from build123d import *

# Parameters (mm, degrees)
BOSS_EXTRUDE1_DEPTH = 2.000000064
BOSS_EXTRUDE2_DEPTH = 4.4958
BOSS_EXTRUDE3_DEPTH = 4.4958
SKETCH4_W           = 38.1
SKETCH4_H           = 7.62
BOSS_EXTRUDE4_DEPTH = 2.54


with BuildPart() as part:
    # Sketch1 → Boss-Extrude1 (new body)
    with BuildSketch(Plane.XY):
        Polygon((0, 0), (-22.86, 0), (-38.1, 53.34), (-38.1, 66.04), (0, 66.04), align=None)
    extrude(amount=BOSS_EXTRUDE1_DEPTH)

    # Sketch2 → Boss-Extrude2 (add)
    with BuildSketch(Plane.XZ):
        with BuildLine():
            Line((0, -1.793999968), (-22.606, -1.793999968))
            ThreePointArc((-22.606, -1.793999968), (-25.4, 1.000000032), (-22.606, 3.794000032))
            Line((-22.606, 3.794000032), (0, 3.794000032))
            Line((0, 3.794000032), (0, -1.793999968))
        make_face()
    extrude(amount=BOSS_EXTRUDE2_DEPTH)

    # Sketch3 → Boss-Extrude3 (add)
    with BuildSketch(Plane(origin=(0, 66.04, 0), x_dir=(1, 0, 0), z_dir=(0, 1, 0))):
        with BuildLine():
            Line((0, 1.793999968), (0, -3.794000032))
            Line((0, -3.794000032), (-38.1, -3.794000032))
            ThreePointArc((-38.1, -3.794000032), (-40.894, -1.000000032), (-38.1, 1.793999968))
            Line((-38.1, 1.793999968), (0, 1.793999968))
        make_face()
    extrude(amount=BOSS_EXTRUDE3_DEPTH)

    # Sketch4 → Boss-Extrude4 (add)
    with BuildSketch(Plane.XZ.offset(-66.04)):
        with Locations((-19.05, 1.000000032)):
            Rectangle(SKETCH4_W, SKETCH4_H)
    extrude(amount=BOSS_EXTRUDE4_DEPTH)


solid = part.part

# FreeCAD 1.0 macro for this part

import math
import FreeCAD as App
import Part
import Sketcher
from FreeCAD import Vector
Q = App.Units.Quantity


def add_polygon(sketch, points):
    """Adds a closed chain of lines whose ends are joined by coincident constraints."""
    first, n = sketch.GeometryCount, len(points)
    for a, b in zip(points, points[1:] + points[:1]):
        sketch.addGeometry(Part.LineSegment(App.Vector(*a, 0), App.Vector(*b, 0)), False)
    for i in range(n):
        sketch.addConstraint(Sketcher.Constraint("Coincident", first + i, 2, first + (i + 1) % n, 1))

doc = App.newDocument("Part")
body = doc.addObject("PartDesign::Body", "Body")

# Sketch on XY plane
sketch1 = body.newObject("Sketcher::SketchObject", "Sketch")
sketch1.AttachmentSupport = (doc.getObject("XY_Plane"), [""])
sketch1.MapMode = "FlatFace"
add_polygon(sketch1, [(-23, 0), (0, 0), (0, 66), (-38, 66), (-38, 53)])  # lines 0-4
sketch1.addConstraint([
    Sketcher.Constraint("Horizontal", 0),
    Sketcher.Constraint("Vertical", 1),
    Sketcher.Constraint("Horizontal", 2),
    Sketcher.Constraint("Vertical", 3),
    Sketcher.Constraint("Coincident", 0, 2, -1, 1),
    Sketcher.Constraint("DistanceX", 0, 1, 0, 2, Q("0.9 in")),
    Sketcher.Constraint("DistanceX", 2, 2, 2, 1, Q("1.5 in")),
    Sketcher.Constraint("DistanceY", 1, 1, 1, 2, Q("2.6 in")),
    Sketcher.Constraint("DistanceY", 3, 2, 3, 1, Q("0.5 in")),
])
pad1 = body.newObject("PartDesign::Pad", "Pad")
pad1.Profile = sketch1
pad1.Length = 2

# Sketch on XZ plane
sketch2 = body.newObject("Sketcher::SketchObject", "Sketch001")
sketch2.AttachmentSupport = (doc.getObject("XZ_Plane"), [""])
sketch2.MapMode = "FlatFace"
sketch2.addGeometry([
    Part.LineSegment(Vector(-22.6, -1.8, 0), Vector(0, -1.8, 0)),
    Part.LineSegment(Vector(0, -1.8, 0), Vector(0, 3.8, 0)),
    Part.LineSegment(Vector(0, 3.8, 0), Vector(-22.6, 3.8, 0)),
    Part.ArcOfCircle(Part.Circle(Vector(-22.6, 1, 0), Vector(0, 0, 1), 2.8), math.radians(90), math.radians(270)),
], False)
sketch2.addConstraint([
    Sketcher.Constraint("Coincident", 0, 2, 1, 1),
    Sketcher.Constraint("Coincident", 1, 2, 2, 1),
    Sketcher.Constraint("Tangent", 2, 2, 3, 1),
    Sketcher.Constraint("Tangent", 3, 2, 0, 1),
    Sketcher.Constraint("Horizontal", 0),
    Sketcher.Constraint("Vertical", 1),
    Sketcher.Constraint("Horizontal", 2),
    Sketcher.Constraint("PointOnObject", 0, 2, -2),
    Sketcher.Constraint("Radius", 3, Q("0.11 in")),
    Sketcher.Constraint("DistanceX", 0, 1, 0, 2, Q("0.89 in")),
    Sketcher.Constraint("DistanceY", -1, 1, 3, 3, Q("1 mm")),
])
pad2 = body.newObject("PartDesign::Pad", "Pad001")
pad2.Profile = sketch2
pad2.Length = Q("0.177 in")

# Sketch on XZ plane
sketch3 = body.newObject("Sketcher::SketchObject", "Sketch002")
sketch3.AttachmentSupport = (doc.getObject("XZ_Plane"), [""])
sketch3.MapMode = "FlatFace"
sketch3.AttachmentOffset = App.Placement(Vector(0, 0, -2.6 * 25.4), App.Rotation())
sketch3.addGeometry([
    Part.LineSegment(Vector(0, 3.8, 0), Vector(0, -1.8, 0)),
    Part.LineSegment(Vector(0, -1.8, 0), Vector(-38.1, -1.8, 0)),
    Part.ArcOfCircle(Part.Circle(Vector(-38.1, 1, 0), Vector(0, 0, 1), 2.8), math.radians(90), math.radians(270)),
    Part.LineSegment(Vector(-38.1, 3.8, 0), Vector(0, 3.8, 0)),
], False)
sketch3.addConstraint([
    Sketcher.Constraint("Coincident", 0, 2, 1, 1),
    Sketcher.Constraint("Tangent", 1, 2, 2, 2),
    Sketcher.Constraint("Tangent", 2, 1, 3, 1),
    Sketcher.Constraint("Coincident", 3, 2, 0, 1),
    Sketcher.Constraint("Vertical", 0),
    Sketcher.Constraint("Horizontal", 1),
    Sketcher.Constraint("Horizontal", 3),
    Sketcher.Constraint("PointOnObject", 0, 2, -2),
    Sketcher.Constraint("Radius", 2, Q("0.11 in")),
    Sketcher.Constraint("DistanceX", 1, 2, 1, 1, Q("1.5 in")),
    Sketcher.Constraint("DistanceY", -1, 1, 2, 3, Q("1 mm")),
])
pad3 = body.newObject("PartDesign::Pad", "Pad002")
pad3.Profile = sketch3
pad3.Length = Q("0.177 in")
pad3.Reversed = True

# Sketch on XZ plane
sketch4 = body.newObject("Sketcher::SketchObject", "Sketch003")
sketch4.AttachmentSupport = (doc.getObject("XZ_Plane"), [""])
sketch4.MapMode = "FlatFace"
sketch4.AttachmentOffset = App.Placement(Vector(0, 0, -2.6 * 25.4), App.Rotation())
add_polygon(sketch4, [(-38, 5), (-38, -3), (0, -3), (0, 5)])  # lines 0-3
sketch4.addConstraint([
    Sketcher.Constraint("Vertical", 0),
    Sketcher.Constraint("Horizontal", 1),
    Sketcher.Constraint("Vertical", 2),
    Sketcher.Constraint("Horizontal", 3),
    Sketcher.Constraint("PointOnObject", 1, 2, -2),
    Sketcher.Constraint("DistanceX", 1, 1, 1, 2, Q("1.5 in")),
    Sketcher.Constraint("DistanceY", 0, 2, 0, 1, Q("0.3 in")),
    Sketcher.Constraint("DistanceY", 0, 2, -1, 1, Q("2.81 mm")),
])
pad4 = body.newObject("PartDesign::Pad", "Pad003")
pad4.Profile = sketch4
pad4.Length = Q("0.1 in")

doc.recompute()
